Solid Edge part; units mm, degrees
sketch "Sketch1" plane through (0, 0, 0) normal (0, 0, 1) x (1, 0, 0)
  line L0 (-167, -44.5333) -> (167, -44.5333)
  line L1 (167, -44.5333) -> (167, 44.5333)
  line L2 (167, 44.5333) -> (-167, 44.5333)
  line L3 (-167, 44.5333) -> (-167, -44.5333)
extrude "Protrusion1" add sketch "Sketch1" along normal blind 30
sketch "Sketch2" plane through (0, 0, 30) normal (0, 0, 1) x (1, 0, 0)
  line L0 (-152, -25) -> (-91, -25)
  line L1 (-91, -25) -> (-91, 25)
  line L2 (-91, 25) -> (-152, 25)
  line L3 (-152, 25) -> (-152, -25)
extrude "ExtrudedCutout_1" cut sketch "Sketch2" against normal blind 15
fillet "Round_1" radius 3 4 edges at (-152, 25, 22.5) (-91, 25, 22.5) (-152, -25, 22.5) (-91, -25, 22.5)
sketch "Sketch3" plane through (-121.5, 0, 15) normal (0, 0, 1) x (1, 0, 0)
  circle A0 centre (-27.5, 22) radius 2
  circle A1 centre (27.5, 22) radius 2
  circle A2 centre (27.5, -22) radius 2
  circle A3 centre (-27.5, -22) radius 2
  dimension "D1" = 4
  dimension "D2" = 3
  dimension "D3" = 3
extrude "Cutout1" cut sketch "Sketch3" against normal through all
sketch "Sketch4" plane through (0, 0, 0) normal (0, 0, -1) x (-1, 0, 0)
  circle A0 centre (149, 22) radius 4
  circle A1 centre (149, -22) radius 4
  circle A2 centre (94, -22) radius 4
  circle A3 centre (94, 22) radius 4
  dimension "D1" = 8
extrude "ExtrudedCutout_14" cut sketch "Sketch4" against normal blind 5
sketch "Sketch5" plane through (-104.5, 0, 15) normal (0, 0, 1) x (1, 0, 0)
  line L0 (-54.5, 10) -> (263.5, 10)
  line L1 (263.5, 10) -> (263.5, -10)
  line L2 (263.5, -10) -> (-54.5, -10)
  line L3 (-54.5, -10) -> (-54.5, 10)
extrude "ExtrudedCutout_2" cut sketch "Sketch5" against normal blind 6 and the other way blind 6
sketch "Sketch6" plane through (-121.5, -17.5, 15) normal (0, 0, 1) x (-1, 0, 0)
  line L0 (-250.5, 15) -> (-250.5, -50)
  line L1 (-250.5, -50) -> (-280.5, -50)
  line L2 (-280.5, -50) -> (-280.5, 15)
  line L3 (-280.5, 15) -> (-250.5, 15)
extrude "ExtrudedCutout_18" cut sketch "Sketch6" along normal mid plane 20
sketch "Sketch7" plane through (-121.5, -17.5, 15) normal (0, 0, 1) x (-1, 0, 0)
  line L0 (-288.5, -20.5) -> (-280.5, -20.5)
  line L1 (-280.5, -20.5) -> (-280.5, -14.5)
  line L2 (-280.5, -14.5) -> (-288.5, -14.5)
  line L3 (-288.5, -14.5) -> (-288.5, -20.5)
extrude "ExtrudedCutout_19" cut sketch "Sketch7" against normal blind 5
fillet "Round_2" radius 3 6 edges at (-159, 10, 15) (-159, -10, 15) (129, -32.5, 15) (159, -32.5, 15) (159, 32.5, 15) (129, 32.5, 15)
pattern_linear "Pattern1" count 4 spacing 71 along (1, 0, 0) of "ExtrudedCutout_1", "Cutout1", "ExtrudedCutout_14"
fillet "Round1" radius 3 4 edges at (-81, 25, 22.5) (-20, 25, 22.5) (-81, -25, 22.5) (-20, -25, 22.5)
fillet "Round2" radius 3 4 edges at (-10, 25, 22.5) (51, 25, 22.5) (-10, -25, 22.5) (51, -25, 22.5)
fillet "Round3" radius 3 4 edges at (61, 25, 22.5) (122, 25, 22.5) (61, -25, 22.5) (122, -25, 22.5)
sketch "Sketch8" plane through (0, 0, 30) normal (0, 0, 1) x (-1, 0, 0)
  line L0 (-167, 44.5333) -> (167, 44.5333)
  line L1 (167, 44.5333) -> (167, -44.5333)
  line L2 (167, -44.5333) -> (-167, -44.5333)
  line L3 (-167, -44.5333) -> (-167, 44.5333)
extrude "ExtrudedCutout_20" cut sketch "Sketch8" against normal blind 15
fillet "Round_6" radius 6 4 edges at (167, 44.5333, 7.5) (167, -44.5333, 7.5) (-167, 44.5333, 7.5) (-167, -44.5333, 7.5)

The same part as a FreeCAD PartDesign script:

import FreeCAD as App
import Part
import Sketcher

V = App.Vector
Q = App.Units.Quantity


def edges_at(feature, points):
    """Names of the edges that pass closest to the given points."""
    edges = feature.Shape.Edges
    near = lambda p: min(range(len(edges)), key=lambda i: edges[i].distToShape(Part.Vertex(*p))[0])
    return sorted({f"Edge{near(p) + 1}" for p in points})

doc = App.newDocument("Part")
body = doc.addObject("PartDesign::Body", "Body")

# Sketch on XY plane
sketch1 = body.newObject("Sketcher::SketchObject", "Sketch")
sketch1.AttachmentSupport = (doc.getObject("XY_Plane"), [""])
sketch1.MapMode = "FlatFace"
sketch1.addGeometry(Part.LineSegment(V(-167, 45, 0), V(-167, -45, 0)), False)
sketch1.addGeometry(Part.LineSegment(V(-167, -45, 0), V(167, -45, 0)), False)
sketch1.addGeometry(Part.LineSegment(V(167, -45, 0), V(167, 45, 0)), False)
sketch1.addGeometry(Part.LineSegment(V(167, 45, 0), V(-167, 45, 0)), False)
sketch1.addConstraint(Sketcher.Constraint("Coincident", 0, 2, 1, 1))
sketch1.addConstraint(Sketcher.Constraint("Coincident", 1, 2, 2, 1))
sketch1.addConstraint(Sketcher.Constraint("Coincident", 2, 2, 3, 1))
sketch1.addConstraint(Sketcher.Constraint("Coincident", 3, 2, 0, 1))
sketch1.addConstraint(Sketcher.Constraint("Vertical", 0))
sketch1.addConstraint(Sketcher.Constraint("Horizontal", 1))
sketch1.addConstraint(Sketcher.Constraint("Vertical", 2))
sketch1.addConstraint(Sketcher.Constraint("Horizontal", 3))
sketch1.addConstraint(Sketcher.Constraint("Symmetric", 0, 2, 2, 2, -1, 1))
sketch1.addConstraint(Sketcher.Constraint("DistanceX", 1, 1, 1, 2, Q("334 mm")))
sketch1.addConstraint(Sketcher.Constraint("DistanceY", 0, 2, 0, 1, Q("89.0666 mm")))
pad1 = body.newObject("PartDesign::Pad", "Pad")
pad1.Profile = sketch1
pad1.Length = 30

# Sketch on XY plane
sketch2 = body.newObject("Sketcher::SketchObject", "Sketch001")
sketch2.AttachmentSupport = (doc.getObject("XY_Plane"), [""])
sketch2.MapMode = "FlatFace"
sketch2.AttachmentOffset = App.Placement(V(0, 0, 30), App.Rotation())
sketch2.addGeometry(Part.LineSegment(V(-152, 25, 0), V(-152, -25, 0)), False)
sketch2.addGeometry(Part.LineSegment(V(-152, -25, 0), V(-91, -25, 0)), False)
sketch2.addGeometry(Part.LineSegment(V(-91, -25, 0), V(-91, 25, 0)), False)
sketch2.addGeometry(Part.LineSegment(V(-91, 25, 0), V(-152, 25, 0)), False)
sketch2.addConstraint(Sketcher.Constraint("Coincident", 0, 2, 1, 1))
sketch2.addConstraint(Sketcher.Constraint("Coincident", 1, 2, 2, 1))
sketch2.addConstraint(Sketcher.Constraint("Coincident", 2, 2, 3, 1))
sketch2.addConstraint(Sketcher.Constraint("Coincident", 3, 2, 0, 1))
sketch2.addConstraint(Sketcher.Constraint("Vertical", 0))
sketch2.addConstraint(Sketcher.Constraint("Horizontal", 1))
sketch2.addConstraint(Sketcher.Constraint("Vertical", 2))
sketch2.addConstraint(Sketcher.Constraint("Horizontal", 3))
sketch2.addConstraint(Sketcher.Constraint("DistanceX", 1, 1, 1, 2, Q("61 mm")))
sketch2.addConstraint(Sketcher.Constraint("DistanceY", 0, 2, 0, 1, Q("50 mm")))
sketch2.addConstraint(Sketcher.Constraint("DistanceX", 0, 2, -1, 1, Q("152 mm")))
sketch2.addConstraint(Sketcher.Constraint("DistanceY", 0, 2, -1, 1, Q("25 mm")))
pocket1 = body.newObject("PartDesign::Pocket", "Pocket")
pocket1.Profile = sketch2
pocket1.Length = 15
doc.recompute()

fillet = body.newObject("PartDesign::Fillet", "Fillet")
fillet.Base = (pocket1, edges_at(pocket1, [
    (-152, 25, 22.5),
    (-91, 25, 22.5),
    (-152, -25, 22.5),
    (-91, -25, 22.5),
]))
fillet.Radius = 3

# Sketch on XY plane
sketch3 = body.newObject("Sketcher::SketchObject", "Sketch002")
sketch3.AttachmentSupport = (doc.getObject("XY_Plane"), [""])
sketch3.MapMode = "FlatFace"
sketch3.AttachmentOffset = App.Placement(V(0, 0, 15), App.Rotation())
sketch3.addGeometry(Part.Circle(V(-149, 22, 0), V(0, 0, 1), 2), False)
sketch3.addGeometry(Part.Circle(V(-94, 22, 0), V(0, 0, 1), 2), False)
sketch3.addGeometry(Part.Circle(V(-94, -22, 0), V(0, 0, 1), 2), False)
sketch3.addGeometry(Part.Circle(V(-149, -22, 0), V(0, 0, 1), 2), False)
sketch3.addConstraint(Sketcher.Constraint("Equal", 0, 1))
sketch3.addConstraint(Sketcher.Constraint("Equal", 1, 2))
sketch3.addConstraint(Sketcher.Constraint("Equal", 2, 3))
sketch3.addConstraint(Sketcher.Constraint("Symmetric", 1, 3, 2, 3, -1))
sketch3.addConstraint(Sketcher.Constraint("Symmetric", 0, 3, 3, 3, -1))
sketch3.addConstraint(Sketcher.Constraint("Horizontal", 0, 3, 1, 3))
sketch3.addConstraint(Sketcher.Constraint("Diameter", 0, Q("4 mm")))
sketch3.addConstraint(Sketcher.Constraint("DistanceX", 0, 3, -1, 1, Q("149 mm")))
sketch3.addConstraint(Sketcher.Constraint("DistanceY", -1, 1, 0, 3, Q("22 mm")))
sketch3.addConstraint(Sketcher.Constraint("DistanceX", 1, 3, -1, 1, Q("94 mm")))
pocket2 = body.newObject("PartDesign::Pocket", "Pocket001")
pocket2.Profile = sketch3
pocket2.Type = "ThroughAll"

# Sketch on XY plane
sketch4 = body.newObject("Sketcher::SketchObject", "Sketch003")
sketch4.AttachmentSupport = (doc.getObject("XY_Plane"), [""])
sketch4.MapMode = "FlatFace"
sketch4.addGeometry(Part.Circle(V(-149, 22, 0), V(0, 0, 1), 4), False)
sketch4.addGeometry(Part.Circle(V(-149, -22, 0), V(0, 0, 1), 4), False)
sketch4.addGeometry(Part.Circle(V(-94, -22, 0), V(0, 0, 1), 4), False)
sketch4.addGeometry(Part.Circle(V(-94, 22, 0), V(0, 0, 1), 4), False)
sketch4.addConstraint(Sketcher.Constraint("Equal", 0, 1))
sketch4.addConstraint(Sketcher.Constraint("Equal", 1, 2))
sketch4.addConstraint(Sketcher.Constraint("Equal", 2, 3))
sketch4.addConstraint(Sketcher.Constraint("Symmetric", 0, 3, 1, 3, -1))
sketch4.addConstraint(Sketcher.Constraint("Symmetric", 2, 3, 3, 3, -1))
sketch4.addConstraint(Sketcher.Constraint("Horizontal", 1, 3, 2, 3))
sketch4.addConstraint(Sketcher.Constraint("Diameter", 0, Q("8 mm")))
sketch4.addConstraint(Sketcher.Constraint("DistanceX", 0, 3, -1, 1, Q("149 mm")))
sketch4.addConstraint(Sketcher.Constraint("DistanceY", -1, 1, 0, 3, Q("22 mm")))
sketch4.addConstraint(Sketcher.Constraint("DistanceX", 2, 3, -1, 1, Q("94 mm")))
pocket3 = body.newObject("PartDesign::Pocket", "Pocket002")
pocket3.Profile = sketch4
pocket3.Length = 5
pocket3.Reversed = True

# Sketch on XY plane
sketch5 = body.newObject("Sketcher::SketchObject", "Sketch004")
sketch5.AttachmentSupport = (doc.getObject("XY_Plane"), [""])
sketch5.MapMode = "FlatFace"
sketch5.AttachmentOffset = App.Placement(V(0, 0, 15), App.Rotation())
sketch5.addGeometry(Part.LineSegment(V(159, 10, 0), V(-159, 10, 0)), False)
sketch5.addGeometry(Part.LineSegment(V(-159, 10, 0), V(-159, -10, 0)), False)
sketch5.addGeometry(Part.LineSegment(V(-159, -10, 0), V(159, -10, 0)), False)
sketch5.addGeometry(Part.LineSegment(V(159, -10, 0), V(159, 10, 0)), False)
sketch5.addConstraint(Sketcher.Constraint("Coincident", 0, 2, 1, 1))
sketch5.addConstraint(Sketcher.Constraint("Coincident", 1, 2, 2, 1))
sketch5.addConstraint(Sketcher.Constraint("Coincident", 2, 2, 3, 1))
sketch5.addConstraint(Sketcher.Constraint("Coincident", 3, 2, 0, 1))
sketch5.addConstraint(Sketcher.Constraint("Horizontal", 0))
sketch5.addConstraint(Sketcher.Constraint("Vertical", 1))
sketch5.addConstraint(Sketcher.Constraint("Horizontal", 2))
sketch5.addConstraint(Sketcher.Constraint("Vertical", 3))
sketch5.addConstraint(Sketcher.Constraint("Symmetric", 0, 2, 2, 2, -1, 1))
sketch5.addConstraint(Sketcher.Constraint("DistanceX", 0, 2, 0, 1, Q("318 mm")))
sketch5.addConstraint(Sketcher.Constraint("DistanceY", 1, 2, 1, 1, Q("20 mm")))
pocket4 = body.newObject("PartDesign::Pocket", "Pocket003")
pocket4.Profile = sketch5
pocket4.Type = "TwoLengths"
pocket4.Length = 6
pocket4.Length2 = 6

# Sketch on XY plane
sketch6 = body.newObject("Sketcher::SketchObject", "Sketch005")
sketch6.AttachmentSupport = (doc.getObject("XY_Plane"), [""])
sketch6.MapMode = "FlatFace"
sketch6.AttachmentOffset = App.Placement(V(0, 0, 15), App.Rotation())
sketch6.addGeometry(Part.LineSegment(V(129, 32, 0), V(129, -32, 0)), False)
sketch6.addGeometry(Part.LineSegment(V(129, -32, 0), V(159, -32, 0)), False)
sketch6.addGeometry(Part.LineSegment(V(159, -32, 0), V(159, 32, 0)), False)
sketch6.addGeometry(Part.LineSegment(V(159, 32, 0), V(129, 32, 0)), False)
sketch6.addConstraint(Sketcher.Constraint("Coincident", 0, 2, 1, 1))
sketch6.addConstraint(Sketcher.Constraint("Coincident", 1, 2, 2, 1))
sketch6.addConstraint(Sketcher.Constraint("Coincident", 2, 2, 3, 1))
sketch6.addConstraint(Sketcher.Constraint("Coincident", 3, 2, 0, 1))
sketch6.addConstraint(Sketcher.Constraint("Vertical", 0))
sketch6.addConstraint(Sketcher.Constraint("Horizontal", 1))
sketch6.addConstraint(Sketcher.Constraint("Vertical", 2))
sketch6.addConstraint(Sketcher.Constraint("Horizontal", 3))
sketch6.addConstraint(Sketcher.Constraint("DistanceX", 1, 1, 1, 2, Q("30 mm")))
sketch6.addConstraint(Sketcher.Constraint("DistanceY", 0, 2, 0, 1, Q("65 mm")))
sketch6.addConstraint(Sketcher.Constraint("DistanceX", -1, 1, 0, 2, Q("129 mm")))
sketch6.addConstraint(Sketcher.Constraint("DistanceY", 0, 2, -1, 1, Q("32.5 mm")))
pocket5 = body.newObject("PartDesign::Pocket", "Pocket004")
pocket5.Profile = sketch6
pocket5.Length = 20
pocket5.Midplane = True

# Sketch on XY plane
sketch7 = body.newObject("Sketcher::SketchObject", "Sketch006")
sketch7.AttachmentSupport = (doc.getObject("XY_Plane"), [""])
sketch7.MapMode = "FlatFace"
sketch7.AttachmentOffset = App.Placement(V(0, 0, 15), App.Rotation())
sketch7.addGeometry(Part.LineSegment(V(167, -3, 0), V(167, 3, 0)), False)
sketch7.addGeometry(Part.LineSegment(V(167, 3, 0), V(159, 3, 0)), False)
sketch7.addGeometry(Part.LineSegment(V(159, 3, 0), V(159, -3, 0)), False)
sketch7.addGeometry(Part.LineSegment(V(159, -3, 0), V(167, -3, 0)), False)
sketch7.addConstraint(Sketcher.Constraint("Coincident", 0, 2, 1, 1))
sketch7.addConstraint(Sketcher.Constraint("Coincident", 1, 2, 2, 1))
sketch7.addConstraint(Sketcher.Constraint("Coincident", 2, 2, 3, 1))
sketch7.addConstraint(Sketcher.Constraint("Coincident", 3, 2, 0, 1))
sketch7.addConstraint(Sketcher.Constraint("Vertical", 0))
sketch7.addConstraint(Sketcher.Constraint("Horizontal", 1))
sketch7.addConstraint(Sketcher.Constraint("Vertical", 2))
sketch7.addConstraint(Sketcher.Constraint("Horizontal", 3))
sketch7.addConstraint(Sketcher.Constraint("DistanceX", 1, 2, 1, 1, Q("8 mm")))
sketch7.addConstraint(Sketcher.Constraint("DistanceY", 0, 1, 0, 2, Q("6 mm")))
sketch7.addConstraint(Sketcher.Constraint("DistanceX", -1, 1, 0, 2, Q("167 mm")))
sketch7.addConstraint(Sketcher.Constraint("DistanceY", -1, 1, 0, 2, Q("3 mm")))
pocket6 = body.newObject("PartDesign::Pocket", "Pocket005")
pocket6.Profile = sketch7
pocket6.Length = 5
doc.recompute()

fillet2 = body.newObject("PartDesign::Fillet", "Fillet001")
fillet2.Base = (pocket6, edges_at(pocket6, [
    (-159, 10, 15),
    (-159, -10, 15),
    (129, -32.5, 15),
    (159, -32.5, 15),
    (159, 32.5, 15),
    (129, 32.5, 15),
]))
fillet2.Radius = 3
doc.recompute()

linearpattern = body.newObject("PartDesign::LinearPattern", "LinearPattern")
linearpattern.Originals = [pocket1, pocket2, pocket3]
linearpattern.Direction = (doc.getObject("X_Axis"), [""])
linearpattern.Mode = "offset"
linearpattern.Offset = 71
linearpattern.Occurrences = 4
body.Tip = linearpattern
doc.recompute()

fillet3 = body.newObject("PartDesign::Fillet", "Fillet002")
fillet3.Base = (linearpattern, edges_at(linearpattern, [
    (-81, 25, 22.5),
    (-20, 25, 22.5),
    (-81, -25, 22.5),
    (-20, -25, 22.5),
]))
fillet3.Radius = 3
doc.recompute()

fillet4 = body.newObject("PartDesign::Fillet", "Fillet003")
fillet4.Base = (fillet3, edges_at(fillet3, [
    (-10, 25, 22.5),
    (51, 25, 22.5),
    (-10, -25, 22.5),
    (51, -25, 22.5),
]))
fillet4.Radius = 3
doc.recompute()

fillet5 = body.newObject("PartDesign::Fillet", "Fillet004")
fillet5.Base = (fillet4, edges_at(fillet4, [
    (61, 25, 22.5),
    (122, 25, 22.5),
    (61, -25, 22.5),
    (122, -25, 22.5),
]))
fillet5.Radius = 3

# Sketch on XY plane
sketch8 = body.newObject("Sketcher::SketchObject", "Sketch007")
sketch8.AttachmentSupport = (doc.getObject("XY_Plane"), [""])
sketch8.MapMode = "FlatFace"
sketch8.AttachmentOffset = App.Placement(V(0, 0, 30), App.Rotation())
sketch8.addGeometry(Part.LineSegment(V(-167, -45, 0), V(167, -45, 0)), False)
sketch8.addGeometry(Part.LineSegment(V(167, -45, 0), V(167, 45, 0)), False)
sketch8.addGeometry(Part.LineSegment(V(167, 45, 0), V(-167, 45, 0)), False)
sketch8.addGeometry(Part.LineSegment(V(-167, 45, 0), V(-167, -45, 0)), False)
sketch8.addConstraint(Sketcher.Constraint("Coincident", 0, 2, 1, 1))
sketch8.addConstraint(Sketcher.Constraint("Coincident", 1, 2, 2, 1))
sketch8.addConstraint(Sketcher.Constraint("Coincident", 2, 2, 3, 1))
sketch8.addConstraint(Sketcher.Constraint("Coincident", 3, 2, 0, 1))
sketch8.addConstraint(Sketcher.Constraint("Horizontal", 0))
sketch8.addConstraint(Sketcher.Constraint("Vertical", 1))
sketch8.addConstraint(Sketcher.Constraint("Horizontal", 2))
sketch8.addConstraint(Sketcher.Constraint("Vertical", 3))
sketch8.addConstraint(Sketcher.Constraint("Symmetric", 0, 2, 2, 2, -1, 1))
sketch8.addConstraint(Sketcher.Constraint("DistanceX", 0, 1, 0, 2, Q("334 mm")))
sketch8.addConstraint(Sketcher.Constraint("DistanceY", 1, 1, 1, 2, Q("89.0666 mm")))
pocket7 = body.newObject("PartDesign::Pocket", "Pocket006")
pocket7.Profile = sketch8
pocket7.Length = 15
doc.recompute()

fillet6 = body.newObject("PartDesign::Fillet", "Fillet005")
fillet6.Base = (pocket7, edges_at(pocket7, [
    (167, 44.533, 7.5),
    (167, -44.533, 7.5),
    (-167, 44.533, 7.5),
    (-167, -44.533, 7.5),
]))
fillet6.Radius = 6

doc.recompute()
